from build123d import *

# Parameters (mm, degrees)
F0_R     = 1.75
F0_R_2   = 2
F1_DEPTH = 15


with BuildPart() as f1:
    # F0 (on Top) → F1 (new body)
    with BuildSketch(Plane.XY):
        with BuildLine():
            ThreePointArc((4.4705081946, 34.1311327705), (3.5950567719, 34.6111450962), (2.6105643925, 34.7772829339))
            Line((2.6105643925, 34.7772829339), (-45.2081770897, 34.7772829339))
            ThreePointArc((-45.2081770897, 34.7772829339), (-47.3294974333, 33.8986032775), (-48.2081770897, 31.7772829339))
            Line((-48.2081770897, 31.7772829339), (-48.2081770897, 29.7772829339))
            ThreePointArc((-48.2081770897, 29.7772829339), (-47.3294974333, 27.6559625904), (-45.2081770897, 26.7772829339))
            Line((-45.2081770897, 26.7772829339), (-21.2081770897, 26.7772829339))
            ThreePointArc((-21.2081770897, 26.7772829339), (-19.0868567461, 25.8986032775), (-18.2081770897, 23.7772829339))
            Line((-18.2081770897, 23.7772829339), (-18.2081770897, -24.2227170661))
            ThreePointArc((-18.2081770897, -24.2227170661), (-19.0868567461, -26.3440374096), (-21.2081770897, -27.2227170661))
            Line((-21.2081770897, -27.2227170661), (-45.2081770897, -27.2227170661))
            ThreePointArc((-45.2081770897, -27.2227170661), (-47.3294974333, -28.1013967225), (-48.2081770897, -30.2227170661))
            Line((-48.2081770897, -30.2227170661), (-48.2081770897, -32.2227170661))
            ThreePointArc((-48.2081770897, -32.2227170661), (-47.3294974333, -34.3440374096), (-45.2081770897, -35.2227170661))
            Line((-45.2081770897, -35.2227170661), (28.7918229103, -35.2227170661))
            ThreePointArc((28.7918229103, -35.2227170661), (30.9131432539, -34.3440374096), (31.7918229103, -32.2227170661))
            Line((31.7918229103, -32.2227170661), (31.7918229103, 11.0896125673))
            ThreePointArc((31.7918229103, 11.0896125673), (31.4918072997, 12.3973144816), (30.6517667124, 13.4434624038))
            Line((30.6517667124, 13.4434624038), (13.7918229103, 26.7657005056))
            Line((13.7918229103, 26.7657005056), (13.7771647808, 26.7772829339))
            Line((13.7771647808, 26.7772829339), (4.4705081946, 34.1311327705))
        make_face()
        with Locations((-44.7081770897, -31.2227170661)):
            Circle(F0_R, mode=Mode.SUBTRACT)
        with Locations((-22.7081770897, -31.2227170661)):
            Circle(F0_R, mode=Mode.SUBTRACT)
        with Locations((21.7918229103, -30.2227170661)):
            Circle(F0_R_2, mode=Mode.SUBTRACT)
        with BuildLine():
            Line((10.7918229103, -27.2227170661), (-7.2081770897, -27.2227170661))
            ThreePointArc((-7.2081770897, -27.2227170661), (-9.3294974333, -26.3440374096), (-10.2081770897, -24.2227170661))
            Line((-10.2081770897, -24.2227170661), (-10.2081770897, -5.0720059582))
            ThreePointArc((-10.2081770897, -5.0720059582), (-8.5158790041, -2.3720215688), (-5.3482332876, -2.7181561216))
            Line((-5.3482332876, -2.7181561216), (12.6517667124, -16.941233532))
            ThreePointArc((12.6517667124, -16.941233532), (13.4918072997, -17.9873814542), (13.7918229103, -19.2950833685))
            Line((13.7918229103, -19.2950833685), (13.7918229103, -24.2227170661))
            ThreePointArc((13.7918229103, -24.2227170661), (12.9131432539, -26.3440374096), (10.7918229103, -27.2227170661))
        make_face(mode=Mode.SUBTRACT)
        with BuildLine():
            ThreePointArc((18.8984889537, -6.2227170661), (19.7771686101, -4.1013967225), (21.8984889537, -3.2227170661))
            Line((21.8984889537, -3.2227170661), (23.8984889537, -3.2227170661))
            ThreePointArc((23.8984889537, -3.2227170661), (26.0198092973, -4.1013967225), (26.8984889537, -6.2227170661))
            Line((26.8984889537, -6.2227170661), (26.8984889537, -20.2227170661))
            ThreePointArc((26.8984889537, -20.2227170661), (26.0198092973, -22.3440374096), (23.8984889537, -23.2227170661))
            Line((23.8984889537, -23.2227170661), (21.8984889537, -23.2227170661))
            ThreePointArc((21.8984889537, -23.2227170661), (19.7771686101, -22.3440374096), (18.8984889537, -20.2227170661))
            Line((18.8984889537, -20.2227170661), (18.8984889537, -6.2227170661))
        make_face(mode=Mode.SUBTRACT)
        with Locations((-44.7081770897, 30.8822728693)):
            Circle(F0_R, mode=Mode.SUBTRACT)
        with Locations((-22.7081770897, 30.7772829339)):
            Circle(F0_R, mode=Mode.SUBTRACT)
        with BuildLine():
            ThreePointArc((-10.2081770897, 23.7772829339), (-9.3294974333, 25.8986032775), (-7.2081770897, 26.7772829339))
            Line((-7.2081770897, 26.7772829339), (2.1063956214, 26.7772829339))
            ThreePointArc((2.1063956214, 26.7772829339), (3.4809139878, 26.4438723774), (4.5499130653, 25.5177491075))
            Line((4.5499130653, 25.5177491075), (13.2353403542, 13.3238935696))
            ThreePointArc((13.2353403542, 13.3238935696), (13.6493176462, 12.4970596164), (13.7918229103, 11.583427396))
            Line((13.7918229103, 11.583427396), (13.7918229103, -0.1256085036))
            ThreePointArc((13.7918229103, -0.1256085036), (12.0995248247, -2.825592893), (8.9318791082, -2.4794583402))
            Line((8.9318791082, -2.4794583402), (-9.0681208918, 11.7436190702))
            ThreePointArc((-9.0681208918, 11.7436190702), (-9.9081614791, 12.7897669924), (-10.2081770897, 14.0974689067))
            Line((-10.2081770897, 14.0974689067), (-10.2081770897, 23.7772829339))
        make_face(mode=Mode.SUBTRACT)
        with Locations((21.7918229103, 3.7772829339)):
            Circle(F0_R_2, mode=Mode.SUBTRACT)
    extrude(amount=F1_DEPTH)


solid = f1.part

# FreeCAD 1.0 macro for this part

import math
import FreeCAD as App
import Part
import Sketcher
Q = App.Units.Quantity

doc = App.newDocument("Part")
body = doc.addObject("PartDesign::Body", "Body")

# Sketch on XY plane
sketch1 = body.newObject("Sketcher::SketchObject", "Sketch")
sketch1.AttachmentSupport = (doc.getObject("XY_Plane"), [""])
sketch1.MapMode = "FlatFace"
sketch1.addGeometry(Part.ArcOfCircle(Part.Circle(App.Vector(2.611, 31.777, 0), App.Vector(0, 0, 1), 3), math.radians(52), math.radians(90)), False)
sketch1.addGeometry(Part.LineSegment(App.Vector(2.611, 34.777, 0), App.Vector(-45.208, 34.777, 0)), False)
sketch1.addGeometry(Part.ArcOfCircle(Part.Circle(App.Vector(-45.208, 31.777, 0), App.Vector(0, 0, 1), 3), math.radians(90), math.radians(180)), False)
sketch1.addGeometry(Part.LineSegment(App.Vector(-48.208, 31.777, 0), App.Vector(-48.208, 29.777, 0)), False)
sketch1.addGeometry(Part.ArcOfCircle(Part.Circle(App.Vector(-45.208, 29.777, 0), App.Vector(0, 0, 1), 3), math.radians(180), math.radians(270)), False)
sketch1.addGeometry(Part.LineSegment(App.Vector(-45.208, 26.777, 0), App.Vector(-21.208, 26.777, 0)), False)
sketch1.addGeometry(Part.ArcOfCircle(Part.Circle(App.Vector(-21.208, 23.777, 0), App.Vector(0, 0, 1), 3), math.radians(0), math.radians(90)), False)
sketch1.addGeometry(Part.LineSegment(App.Vector(-18.208, 23.777, 0), App.Vector(-18.208, -24.223, 0)), False)
sketch1.addGeometry(Part.ArcOfCircle(Part.Circle(App.Vector(-21.208, -24.223, 0), App.Vector(0, 0, 1), 3), math.radians(-90), math.radians(0)), False)
sketch1.addGeometry(Part.LineSegment(App.Vector(-21.208, -27.223, 0), App.Vector(-45.208, -27.223, 0)), False)
sketch1.addGeometry(Part.ArcOfCircle(Part.Circle(App.Vector(-45.208, -30.223, 0), App.Vector(0, 0, 1), 3), math.radians(90), math.radians(180)), False)
sketch1.addGeometry(Part.LineSegment(App.Vector(-48.208, -30.223, 0), App.Vector(-48.208, -32.223, 0)), False)
sketch1.addGeometry(Part.ArcOfCircle(Part.Circle(App.Vector(-45.208, -32.223, 0), App.Vector(0, 0, 1), 3), math.radians(180), math.radians(270)), False)
sketch1.addGeometry(Part.LineSegment(App.Vector(-45.208, -35.223, 0), App.Vector(28.792, -35.223, 0)), False)
sketch1.addGeometry(Part.ArcOfCircle(Part.Circle(App.Vector(28.792, -32.223, 0), App.Vector(0, 0, 1), 3), math.radians(-90), math.radians(0)), False)
sketch1.addGeometry(Part.LineSegment(App.Vector(31.792, -32.223, 0), App.Vector(31.792, 11.09, 0)), False)
sketch1.addGeometry(Part.ArcOfCircle(Part.Circle(App.Vector(28.792, 11.09, 0), App.Vector(0, 0, 1), 3), math.radians(0), math.radians(52)), False)
sketch1.addGeometry(Part.LineSegment(App.Vector(30.652, 13.443, 0), App.Vector(13.792, 26.766, 0)), False)
sketch1.addGeometry(Part.LineSegment(App.Vector(13.792, 26.766, 0), App.Vector(13.777, 26.777, 0)), False)
sketch1.addGeometry(Part.LineSegment(App.Vector(13.777, 26.777, 0), App.Vector(4.471, 34.131, 0)), False)
sketch1.addGeometry(Part.Circle(App.Vector(-44.708, -31.223, 0), App.Vector(0, 0, 1), 1.75), False)
sketch1.addGeometry(Part.Circle(App.Vector(-22.708, -31.223, 0), App.Vector(0, 0, 1), 1.75), False)
sketch1.addGeometry(Part.Circle(App.Vector(21.792, -30.223, 0), App.Vector(0, 0, 1), 2), False)
sketch1.addGeometry(Part.ArcOfCircle(Part.Circle(App.Vector(10.792, -24.223, 0), App.Vector(0, 0, 1), 3), math.radians(-90), math.radians(0)), False)
sketch1.addGeometry(Part.LineSegment(App.Vector(10.792, -27.223, 0), App.Vector(-7.208, -27.223, 0)), False)
sketch1.addGeometry(Part.ArcOfCircle(Part.Circle(App.Vector(-7.208, -24.223, 0), App.Vector(0, 0, 1), 3), math.radians(180), math.radians(270)), False)
sketch1.addGeometry(Part.LineSegment(App.Vector(-10.208, -24.223, 0), App.Vector(-10.208, -5.072, 0)), False)
sketch1.addGeometry(Part.ArcOfCircle(Part.Circle(App.Vector(-7.208, -5.072, 0), App.Vector(0, 0, 1), 3), math.radians(52), math.radians(180)), False)
sketch1.addGeometry(Part.LineSegment(App.Vector(-5.348, -2.718, 0), App.Vector(12.652, -16.941, 0)), False)
sketch1.addGeometry(Part.ArcOfCircle(Part.Circle(App.Vector(10.792, -19.295, 0), App.Vector(0, 0, 1), 3), math.radians(0), math.radians(52)), False)
sketch1.addGeometry(Part.LineSegment(App.Vector(13.792, -19.295, 0), App.Vector(13.792, -24.223, 0)), False)
sketch1.addGeometry(Part.LineSegment(App.Vector(18.898, -20.223, 0), App.Vector(18.898, -6.223, 0)), False)
sketch1.addGeometry(Part.ArcOfCircle(Part.Circle(App.Vector(21.898, -6.223, 0), App.Vector(0, 0, 1), 3), math.radians(90), math.radians(180)), False)
sketch1.addGeometry(Part.LineSegment(App.Vector(21.898, -3.223, 0), App.Vector(23.898, -3.223, 0)), False)
sketch1.addGeometry(Part.ArcOfCircle(Part.Circle(App.Vector(23.898, -6.223, 0), App.Vector(0, 0, 1), 3), math.radians(0), math.radians(90)), False)
sketch1.addGeometry(Part.LineSegment(App.Vector(26.898, -6.223, 0), App.Vector(26.898, -20.223, 0)), False)
sketch1.addGeometry(Part.ArcOfCircle(Part.Circle(App.Vector(23.898, -20.223, 0), App.Vector(0, 0, 1), 3), math.radians(-90), math.radians(0)), False)
sketch1.addGeometry(Part.LineSegment(App.Vector(23.898, -23.223, 0), App.Vector(21.898, -23.223, 0)), False)
sketch1.addGeometry(Part.ArcOfCircle(Part.Circle(App.Vector(21.898, -20.223, 0), App.Vector(0, 0, 1), 3), math.radians(180), math.radians(270)), False)
sketch1.addGeometry(Part.Circle(App.Vector(-44.708, 30.882, 0), App.Vector(0, 0, 1), 1.75), False)
sketch1.addGeometry(Part.Circle(App.Vector(-22.708, 30.777, 0), App.Vector(0, 0, 1), 1.75), False)
sketch1.addGeometry(Part.LineSegment(App.Vector(-10.208, 14.097, 0), App.Vector(-10.208, 23.777, 0)), False)
sketch1.addGeometry(Part.ArcOfCircle(Part.Circle(App.Vector(-7.208, 23.777, 0), App.Vector(0, 0, 1), 3), math.radians(90), math.radians(180)), False)
sketch1.addGeometry(Part.LineSegment(App.Vector(-7.208, 26.777, 0), App.Vector(2.106, 26.777, 0)), False)
sketch1.addGeometry(Part.ArcOfCircle(Part.Circle(App.Vector(2.106, 23.777, 0), App.Vector(0, 0, 1), 3), math.radians(35), math.radians(90)), False)
sketch1.addGeometry(Part.LineSegment(App.Vector(4.55, 25.518, 0), App.Vector(13.235, 13.324, 0)), False)
sketch1.addGeometry(Part.ArcOfCircle(Part.Circle(App.Vector(10.792, 11.583, 0), App.Vector(0, 0, 1), 3), math.radians(0), math.radians(35)), False)
sketch1.addGeometry(Part.LineSegment(App.Vector(13.792, 11.583, 0), App.Vector(13.792, -0.126, 0)), False)
sketch1.addGeometry(Part.ArcOfCircle(Part.Circle(App.Vector(10.792, -0.126, 0), App.Vector(0, 0, 1), 3), math.radians(-128), math.radians(0)), False)
sketch1.addGeometry(Part.LineSegment(App.Vector(8.932, -2.479, 0), App.Vector(-9.068, 11.744, 0)), False)
sketch1.addGeometry(Part.ArcOfCircle(Part.Circle(App.Vector(-7.208, 14.097, 0), App.Vector(0, 0, 1), 3), math.radians(180), math.radians(232)), False)
sketch1.addGeometry(Part.Circle(App.Vector(21.792, 3.777, 0), App.Vector(0, 0, 1), 2), False)
sketch1.addConstraint(Sketcher.Constraint("Tangent", 0, 2, 1, 1))
sketch1.addConstraint(Sketcher.Constraint("Tangent", 1, 2, 2, 1))
sketch1.addConstraint(Sketcher.Constraint("Tangent", 2, 2, 3, 1))
sketch1.addConstraint(Sketcher.Constraint("Tangent", 3, 2, 4, 1))
sketch1.addConstraint(Sketcher.Constraint("Tangent", 4, 2, 5, 1))
sketch1.addConstraint(Sketcher.Constraint("Tangent", 5, 2, 6, 2))
sketch1.addConstraint(Sketcher.Constraint("Tangent", 6, 1, 7, 1))
sketch1.addConstraint(Sketcher.Constraint("Tangent", 7, 2, 8, 2))
sketch1.addConstraint(Sketcher.Constraint("Tangent", 8, 1, 9, 1))
sketch1.addConstraint(Sketcher.Constraint("Tangent", 9, 2, 10, 1))
sketch1.addConstraint(Sketcher.Constraint("Tangent", 10, 2, 11, 1))
sketch1.addConstraint(Sketcher.Constraint("Tangent", 11, 2, 12, 1))
sketch1.addConstraint(Sketcher.Constraint("Tangent", 12, 2, 13, 1))
sketch1.addConstraint(Sketcher.Constraint("Tangent", 13, 2, 14, 1))
sketch1.addConstraint(Sketcher.Constraint("Tangent", 14, 2, 15, 1))
sketch1.addConstraint(Sketcher.Constraint("Tangent", 15, 2, 16, 1))
sketch1.addConstraint(Sketcher.Constraint("Tangent", 16, 2, 17, 1))
sketch1.addConstraint(Sketcher.Constraint("Coincident", 17, 2, 18, 1))
sketch1.addConstraint(Sketcher.Constraint("Coincident", 18, 2, 19, 1))
sketch1.addConstraint(Sketcher.Constraint("Tangent", 19, 2, 0, 1))
sketch1.addConstraint(Sketcher.Constraint("Tangent", 23, 1, 24, 1))
sketch1.addConstraint(Sketcher.Constraint("Tangent", 24, 2, 25, 2))
sketch1.addConstraint(Sketcher.Constraint("Tangent", 25, 1, 26, 1))
sketch1.addConstraint(Sketcher.Constraint("Tangent", 26, 2, 27, 2))
sketch1.addConstraint(Sketcher.Constraint("Tangent", 27, 1, 28, 1))
sketch1.addConstraint(Sketcher.Constraint("Tangent", 28, 2, 29, 2))
sketch1.addConstraint(Sketcher.Constraint("Tangent", 29, 1, 30, 1))
sketch1.addConstraint(Sketcher.Constraint("Tangent", 30, 2, 23, 2))
sketch1.addConstraint(Sketcher.Constraint("Tangent", 31, 2, 32, 2))
sketch1.addConstraint(Sketcher.Constraint("Tangent", 32, 1, 33, 1))
sketch1.addConstraint(Sketcher.Constraint("Tangent", 33, 2, 34, 2))
sketch1.addConstraint(Sketcher.Constraint("Tangent", 34, 1, 35, 1))
sketch1.addConstraint(Sketcher.Constraint("Tangent", 35, 2, 36, 2))
sketch1.addConstraint(Sketcher.Constraint("Tangent", 36, 1, 37, 1))
sketch1.addConstraint(Sketcher.Constraint("Tangent", 37, 2, 38, 2))
sketch1.addConstraint(Sketcher.Constraint("Tangent", 38, 1, 31, 1))
sketch1.addConstraint(Sketcher.Constraint("Tangent", 41, 2, 42, 2))
sketch1.addConstraint(Sketcher.Constraint("Tangent", 42, 1, 43, 1))
sketch1.addConstraint(Sketcher.Constraint("Tangent", 43, 2, 44, 2))
sketch1.addConstraint(Sketcher.Constraint("Tangent", 44, 1, 45, 1))
sketch1.addConstraint(Sketcher.Constraint("Tangent", 45, 2, 46, 2))
sketch1.addConstraint(Sketcher.Constraint("Tangent", 46, 1, 47, 1))
sketch1.addConstraint(Sketcher.Constraint("Tangent", 47, 2, 48, 2))
sketch1.addConstraint(Sketcher.Constraint("Tangent", 48, 1, 49, 1))
sketch1.addConstraint(Sketcher.Constraint("Tangent", 49, 2, 50, 2))
sketch1.addConstraint(Sketcher.Constraint("Tangent", 50, 1, 41, 1))
sketch1.addConstraint(Sketcher.Constraint("Horizontal", 1))
sketch1.addConstraint(Sketcher.Constraint("Vertical", 3))
sketch1.addConstraint(Sketcher.Constraint("Horizontal", 5))
sketch1.addConstraint(Sketcher.Constraint("Vertical", 7))
sketch1.addConstraint(Sketcher.Constraint("Horizontal", 9))
sketch1.addConstraint(Sketcher.Constraint("Vertical", 11))
sketch1.addConstraint(Sketcher.Constraint("Horizontal", 13))
sketch1.addConstraint(Sketcher.Constraint("Vertical", 15))
sketch1.addConstraint(Sketcher.Constraint("Horizontal", 24))
sketch1.addConstraint(Sketcher.Constraint("Vertical", 26))
sketch1.addConstraint(Sketcher.Constraint("Vertical", 30))
sketch1.addConstraint(Sketcher.Constraint("Vertical", 31))
sketch1.addConstraint(Sketcher.Constraint("Horizontal", 33))
sketch1.addConstraint(Sketcher.Constraint("Vertical", 35))
sketch1.addConstraint(Sketcher.Constraint("Horizontal", 37))
sketch1.addConstraint(Sketcher.Constraint("Vertical", 41))
sketch1.addConstraint(Sketcher.Constraint("Horizontal", 43))
sketch1.addConstraint(Sketcher.Constraint("Vertical", 47))
sketch1.addConstraint(Sketcher.Constraint("Equal", 0, 2))
sketch1.addConstraint(Sketcher.Constraint("Equal", 2, 4))
sketch1.addConstraint(Sketcher.Constraint("Equal", 4, 6))
sketch1.addConstraint(Sketcher.Constraint("Equal", 6, 8))
sketch1.addConstraint(Sketcher.Constraint("Equal", 8, 10))
sketch1.addConstraint(Sketcher.Constraint("Equal", 10, 12))
sketch1.addConstraint(Sketcher.Constraint("Equal", 12, 14))
sketch1.addConstraint(Sketcher.Constraint("Equal", 14, 16))
sketch1.addConstraint(Sketcher.Constraint("Equal", 20, 21))
sketch1.addConstraint(Sketcher.Constraint("Equal", 16, 23))
sketch1.addConstraint(Sketcher.Constraint("Equal", 23, 25))
sketch1.addConstraint(Sketcher.Constraint("Equal", 25, 27))
sketch1.addConstraint(Sketcher.Constraint("Equal", 27, 29))
sketch1.addConstraint(Sketcher.Constraint("Equal", 29, 32))
sketch1.addConstraint(Sketcher.Constraint("Equal", 32, 34))
sketch1.addConstraint(Sketcher.Constraint("Equal", 34, 36))
sketch1.addConstraint(Sketcher.Constraint("Equal", 36, 38))
sketch1.addConstraint(Sketcher.Constraint("Equal", 21, 39))
sketch1.addConstraint(Sketcher.Constraint("Equal", 39, 40))
sketch1.addConstraint(Sketcher.Constraint("Equal", 38, 42))
sketch1.addConstraint(Sketcher.Constraint("Equal", 42, 44))
sketch1.addConstraint(Sketcher.Constraint("Equal", 44, 46))
sketch1.addConstraint(Sketcher.Constraint("Equal", 46, 48))
sketch1.addConstraint(Sketcher.Constraint("Equal", 48, 50))
sketch1.addConstraint(Sketcher.Constraint("Equal", 22, 51))
sketch1.addConstraint(Sketcher.Constraint("Parallel", 17, 18))
sketch1.addConstraint(Sketcher.Constraint("Parallel", 17, 19))
sketch1.addConstraint(Sketcher.Constraint("Parallel", 19, 28))
sketch1.addConstraint(Sketcher.Constraint("Parallel", 28, 49))
sketch1.addConstraint(Sketcher.Constraint("Horizontal", 20, 3, 21, 3))
sketch1.addConstraint(Sketcher.Constraint("Horizontal", 10, 3, 22, 3))
sketch1.addConstraint(Sketcher.Constraint("Horizontal", 8, 3, 23, 3))
sketch1.addConstraint(Sketcher.Constraint("Horizontal", 6, 3, 42, 3))
sketch1.addConstraint(Sketcher.Constraint("Horizontal", 5, 2, 18, 2))
sketch1.addConstraint(Sketcher.Constraint("Vertical", 4, 3, 10, 3))
sketch1.addConstraint(Sketcher.Constraint("Vertical", 20, 3, 39, 3))
sketch1.addConstraint(Sketcher.Constraint("Vertical", 21, 3, 40, 3))
sketch1.addConstraint(Sketcher.Constraint("Vertical", 27, 3, 42, 3))
sketch1.addConstraint(Sketcher.Constraint("Vertical", 29, 3, 46, 3))
sketch1.addConstraint(Sketcher.Constraint("Vertical", 22, 3, 51, 3))
sketch1.addConstraint(Sketcher.Constraint("Vertical", 17, 2, 29, 1))
sketch1.addConstraint(Sketcher.Constraint("Equal", 37, 3))
sketch1.addConstraint(Sketcher.Constraint("Equal", 3, 11))
sketch1.addConstraint(Sketcher.Constraint("Diameter", 22, Q("4 mm")))
sketch1.addConstraint(Sketcher.Constraint("Radius", 0, Q("3 mm")))
sketch1.addConstraint(Sketcher.Constraint("Diameter", 20, Q("3.5 mm")))
sketch1.addConstraint(Sketcher.Constraint("DistanceX", 5, 1, 5, 2, Q("24 mm")))
sketch1.addConstraint(Sketcher.Constraint("DistanceX", 13, 1, 13, 2, Q("74 mm")))
sketch1.addConstraint(Sketcher.Constraint("DistanceX", 24, 2, 24, 1, Q("18 mm")))
sketch1.addConstraint(Sketcher.Constraint("DistanceX", 33, 1, 33, 2, Q("2 mm")))
sketch1.addConstraint(Sketcher.Constraint("DistanceY", 7, 2, 7, 1, Q("48 mm")))
sketch1.addConstraint(Sketcher.Constraint("DistanceY", 31, 1, 31, 2, Q("14 mm")))
sketch1.addConstraint(Sketcher.Constraint("DistanceX", 1, 2, 1, 1, Q("47.818741 mm")))
sketch1.addConstraint(Sketcher.Constraint("DistanceY", 15, 1, 15, 2, Q("43.31233 mm")))
sketch1.addConstraint(Sketcher.Constraint("DistanceY", 26, 1, 26, 2, Q("19.150711 mm")))
sketch1.addConstraint(Sketcher.Constraint("DistanceY", -1, 1, 17, 2, Q("26.765701 mm")))
sketch1.addConstraint(Sketcher.Constraint("Distance", 17, Q("21.48813 mm")))
sketch1.addConstraint(Sketcher.Constraint("DistanceX", 43, 1, 43, 2, Q("9.314573 mm")))
sketch1.addConstraint(Sketcher.Constraint("DistanceY", 41, 1, 41, 2, Q("9.679814 mm")))
sketch1.addConstraint(Sketcher.Constraint("DistanceY", 47, 2, 47, 1, Q("11.709036 mm")))
sketch1.addConstraint(Sketcher.Constraint("DistanceX", -1, 1, 32, 3, Q("21.898489 mm")))
sketch1.addConstraint(Sketcher.Constraint("DistanceX", -1, 1, 19, 2, Q("4.470508 mm")))
sketch1.addConstraint(Sketcher.Constraint("DistanceX", 20, 3, -1, 1, Q("44.708177 mm")))
sketch1.addConstraint(Sketcher.Constraint("DistanceY", 20, 3, -1, 1, Q("31.222717 mm")))
sketch1.addConstraint(Sketcher.Constraint("DistanceX", 21, 3, -1, 1, Q("22.708177 mm")))
sketch1.addConstraint(Sketcher.Constraint("DistanceX", -1, 1, 22, 3, Q("21.791823 mm")))
sketch1.addConstraint(Sketcher.Constraint("DistanceY", 32, 3, -1, 1, Q("6.222717 mm")))
sketch1.addConstraint(Sketcher.Constraint("DistanceY", -1, 1, 39, 3, Q("30.882273 mm")))
sketch1.addConstraint(Sketcher.Constraint("DistanceY", -1, 1, 40, 3, Q("30.777283 mm")))
sketch1.addConstraint(Sketcher.Constraint("DistanceY", -1, 1, 51, 3, Q("3.777283 mm")))
pad1 = body.newObject("PartDesign::Pad", "Pad")
pad1.Profile = sketch1
pad1.Length = 15

doc.recompute()
